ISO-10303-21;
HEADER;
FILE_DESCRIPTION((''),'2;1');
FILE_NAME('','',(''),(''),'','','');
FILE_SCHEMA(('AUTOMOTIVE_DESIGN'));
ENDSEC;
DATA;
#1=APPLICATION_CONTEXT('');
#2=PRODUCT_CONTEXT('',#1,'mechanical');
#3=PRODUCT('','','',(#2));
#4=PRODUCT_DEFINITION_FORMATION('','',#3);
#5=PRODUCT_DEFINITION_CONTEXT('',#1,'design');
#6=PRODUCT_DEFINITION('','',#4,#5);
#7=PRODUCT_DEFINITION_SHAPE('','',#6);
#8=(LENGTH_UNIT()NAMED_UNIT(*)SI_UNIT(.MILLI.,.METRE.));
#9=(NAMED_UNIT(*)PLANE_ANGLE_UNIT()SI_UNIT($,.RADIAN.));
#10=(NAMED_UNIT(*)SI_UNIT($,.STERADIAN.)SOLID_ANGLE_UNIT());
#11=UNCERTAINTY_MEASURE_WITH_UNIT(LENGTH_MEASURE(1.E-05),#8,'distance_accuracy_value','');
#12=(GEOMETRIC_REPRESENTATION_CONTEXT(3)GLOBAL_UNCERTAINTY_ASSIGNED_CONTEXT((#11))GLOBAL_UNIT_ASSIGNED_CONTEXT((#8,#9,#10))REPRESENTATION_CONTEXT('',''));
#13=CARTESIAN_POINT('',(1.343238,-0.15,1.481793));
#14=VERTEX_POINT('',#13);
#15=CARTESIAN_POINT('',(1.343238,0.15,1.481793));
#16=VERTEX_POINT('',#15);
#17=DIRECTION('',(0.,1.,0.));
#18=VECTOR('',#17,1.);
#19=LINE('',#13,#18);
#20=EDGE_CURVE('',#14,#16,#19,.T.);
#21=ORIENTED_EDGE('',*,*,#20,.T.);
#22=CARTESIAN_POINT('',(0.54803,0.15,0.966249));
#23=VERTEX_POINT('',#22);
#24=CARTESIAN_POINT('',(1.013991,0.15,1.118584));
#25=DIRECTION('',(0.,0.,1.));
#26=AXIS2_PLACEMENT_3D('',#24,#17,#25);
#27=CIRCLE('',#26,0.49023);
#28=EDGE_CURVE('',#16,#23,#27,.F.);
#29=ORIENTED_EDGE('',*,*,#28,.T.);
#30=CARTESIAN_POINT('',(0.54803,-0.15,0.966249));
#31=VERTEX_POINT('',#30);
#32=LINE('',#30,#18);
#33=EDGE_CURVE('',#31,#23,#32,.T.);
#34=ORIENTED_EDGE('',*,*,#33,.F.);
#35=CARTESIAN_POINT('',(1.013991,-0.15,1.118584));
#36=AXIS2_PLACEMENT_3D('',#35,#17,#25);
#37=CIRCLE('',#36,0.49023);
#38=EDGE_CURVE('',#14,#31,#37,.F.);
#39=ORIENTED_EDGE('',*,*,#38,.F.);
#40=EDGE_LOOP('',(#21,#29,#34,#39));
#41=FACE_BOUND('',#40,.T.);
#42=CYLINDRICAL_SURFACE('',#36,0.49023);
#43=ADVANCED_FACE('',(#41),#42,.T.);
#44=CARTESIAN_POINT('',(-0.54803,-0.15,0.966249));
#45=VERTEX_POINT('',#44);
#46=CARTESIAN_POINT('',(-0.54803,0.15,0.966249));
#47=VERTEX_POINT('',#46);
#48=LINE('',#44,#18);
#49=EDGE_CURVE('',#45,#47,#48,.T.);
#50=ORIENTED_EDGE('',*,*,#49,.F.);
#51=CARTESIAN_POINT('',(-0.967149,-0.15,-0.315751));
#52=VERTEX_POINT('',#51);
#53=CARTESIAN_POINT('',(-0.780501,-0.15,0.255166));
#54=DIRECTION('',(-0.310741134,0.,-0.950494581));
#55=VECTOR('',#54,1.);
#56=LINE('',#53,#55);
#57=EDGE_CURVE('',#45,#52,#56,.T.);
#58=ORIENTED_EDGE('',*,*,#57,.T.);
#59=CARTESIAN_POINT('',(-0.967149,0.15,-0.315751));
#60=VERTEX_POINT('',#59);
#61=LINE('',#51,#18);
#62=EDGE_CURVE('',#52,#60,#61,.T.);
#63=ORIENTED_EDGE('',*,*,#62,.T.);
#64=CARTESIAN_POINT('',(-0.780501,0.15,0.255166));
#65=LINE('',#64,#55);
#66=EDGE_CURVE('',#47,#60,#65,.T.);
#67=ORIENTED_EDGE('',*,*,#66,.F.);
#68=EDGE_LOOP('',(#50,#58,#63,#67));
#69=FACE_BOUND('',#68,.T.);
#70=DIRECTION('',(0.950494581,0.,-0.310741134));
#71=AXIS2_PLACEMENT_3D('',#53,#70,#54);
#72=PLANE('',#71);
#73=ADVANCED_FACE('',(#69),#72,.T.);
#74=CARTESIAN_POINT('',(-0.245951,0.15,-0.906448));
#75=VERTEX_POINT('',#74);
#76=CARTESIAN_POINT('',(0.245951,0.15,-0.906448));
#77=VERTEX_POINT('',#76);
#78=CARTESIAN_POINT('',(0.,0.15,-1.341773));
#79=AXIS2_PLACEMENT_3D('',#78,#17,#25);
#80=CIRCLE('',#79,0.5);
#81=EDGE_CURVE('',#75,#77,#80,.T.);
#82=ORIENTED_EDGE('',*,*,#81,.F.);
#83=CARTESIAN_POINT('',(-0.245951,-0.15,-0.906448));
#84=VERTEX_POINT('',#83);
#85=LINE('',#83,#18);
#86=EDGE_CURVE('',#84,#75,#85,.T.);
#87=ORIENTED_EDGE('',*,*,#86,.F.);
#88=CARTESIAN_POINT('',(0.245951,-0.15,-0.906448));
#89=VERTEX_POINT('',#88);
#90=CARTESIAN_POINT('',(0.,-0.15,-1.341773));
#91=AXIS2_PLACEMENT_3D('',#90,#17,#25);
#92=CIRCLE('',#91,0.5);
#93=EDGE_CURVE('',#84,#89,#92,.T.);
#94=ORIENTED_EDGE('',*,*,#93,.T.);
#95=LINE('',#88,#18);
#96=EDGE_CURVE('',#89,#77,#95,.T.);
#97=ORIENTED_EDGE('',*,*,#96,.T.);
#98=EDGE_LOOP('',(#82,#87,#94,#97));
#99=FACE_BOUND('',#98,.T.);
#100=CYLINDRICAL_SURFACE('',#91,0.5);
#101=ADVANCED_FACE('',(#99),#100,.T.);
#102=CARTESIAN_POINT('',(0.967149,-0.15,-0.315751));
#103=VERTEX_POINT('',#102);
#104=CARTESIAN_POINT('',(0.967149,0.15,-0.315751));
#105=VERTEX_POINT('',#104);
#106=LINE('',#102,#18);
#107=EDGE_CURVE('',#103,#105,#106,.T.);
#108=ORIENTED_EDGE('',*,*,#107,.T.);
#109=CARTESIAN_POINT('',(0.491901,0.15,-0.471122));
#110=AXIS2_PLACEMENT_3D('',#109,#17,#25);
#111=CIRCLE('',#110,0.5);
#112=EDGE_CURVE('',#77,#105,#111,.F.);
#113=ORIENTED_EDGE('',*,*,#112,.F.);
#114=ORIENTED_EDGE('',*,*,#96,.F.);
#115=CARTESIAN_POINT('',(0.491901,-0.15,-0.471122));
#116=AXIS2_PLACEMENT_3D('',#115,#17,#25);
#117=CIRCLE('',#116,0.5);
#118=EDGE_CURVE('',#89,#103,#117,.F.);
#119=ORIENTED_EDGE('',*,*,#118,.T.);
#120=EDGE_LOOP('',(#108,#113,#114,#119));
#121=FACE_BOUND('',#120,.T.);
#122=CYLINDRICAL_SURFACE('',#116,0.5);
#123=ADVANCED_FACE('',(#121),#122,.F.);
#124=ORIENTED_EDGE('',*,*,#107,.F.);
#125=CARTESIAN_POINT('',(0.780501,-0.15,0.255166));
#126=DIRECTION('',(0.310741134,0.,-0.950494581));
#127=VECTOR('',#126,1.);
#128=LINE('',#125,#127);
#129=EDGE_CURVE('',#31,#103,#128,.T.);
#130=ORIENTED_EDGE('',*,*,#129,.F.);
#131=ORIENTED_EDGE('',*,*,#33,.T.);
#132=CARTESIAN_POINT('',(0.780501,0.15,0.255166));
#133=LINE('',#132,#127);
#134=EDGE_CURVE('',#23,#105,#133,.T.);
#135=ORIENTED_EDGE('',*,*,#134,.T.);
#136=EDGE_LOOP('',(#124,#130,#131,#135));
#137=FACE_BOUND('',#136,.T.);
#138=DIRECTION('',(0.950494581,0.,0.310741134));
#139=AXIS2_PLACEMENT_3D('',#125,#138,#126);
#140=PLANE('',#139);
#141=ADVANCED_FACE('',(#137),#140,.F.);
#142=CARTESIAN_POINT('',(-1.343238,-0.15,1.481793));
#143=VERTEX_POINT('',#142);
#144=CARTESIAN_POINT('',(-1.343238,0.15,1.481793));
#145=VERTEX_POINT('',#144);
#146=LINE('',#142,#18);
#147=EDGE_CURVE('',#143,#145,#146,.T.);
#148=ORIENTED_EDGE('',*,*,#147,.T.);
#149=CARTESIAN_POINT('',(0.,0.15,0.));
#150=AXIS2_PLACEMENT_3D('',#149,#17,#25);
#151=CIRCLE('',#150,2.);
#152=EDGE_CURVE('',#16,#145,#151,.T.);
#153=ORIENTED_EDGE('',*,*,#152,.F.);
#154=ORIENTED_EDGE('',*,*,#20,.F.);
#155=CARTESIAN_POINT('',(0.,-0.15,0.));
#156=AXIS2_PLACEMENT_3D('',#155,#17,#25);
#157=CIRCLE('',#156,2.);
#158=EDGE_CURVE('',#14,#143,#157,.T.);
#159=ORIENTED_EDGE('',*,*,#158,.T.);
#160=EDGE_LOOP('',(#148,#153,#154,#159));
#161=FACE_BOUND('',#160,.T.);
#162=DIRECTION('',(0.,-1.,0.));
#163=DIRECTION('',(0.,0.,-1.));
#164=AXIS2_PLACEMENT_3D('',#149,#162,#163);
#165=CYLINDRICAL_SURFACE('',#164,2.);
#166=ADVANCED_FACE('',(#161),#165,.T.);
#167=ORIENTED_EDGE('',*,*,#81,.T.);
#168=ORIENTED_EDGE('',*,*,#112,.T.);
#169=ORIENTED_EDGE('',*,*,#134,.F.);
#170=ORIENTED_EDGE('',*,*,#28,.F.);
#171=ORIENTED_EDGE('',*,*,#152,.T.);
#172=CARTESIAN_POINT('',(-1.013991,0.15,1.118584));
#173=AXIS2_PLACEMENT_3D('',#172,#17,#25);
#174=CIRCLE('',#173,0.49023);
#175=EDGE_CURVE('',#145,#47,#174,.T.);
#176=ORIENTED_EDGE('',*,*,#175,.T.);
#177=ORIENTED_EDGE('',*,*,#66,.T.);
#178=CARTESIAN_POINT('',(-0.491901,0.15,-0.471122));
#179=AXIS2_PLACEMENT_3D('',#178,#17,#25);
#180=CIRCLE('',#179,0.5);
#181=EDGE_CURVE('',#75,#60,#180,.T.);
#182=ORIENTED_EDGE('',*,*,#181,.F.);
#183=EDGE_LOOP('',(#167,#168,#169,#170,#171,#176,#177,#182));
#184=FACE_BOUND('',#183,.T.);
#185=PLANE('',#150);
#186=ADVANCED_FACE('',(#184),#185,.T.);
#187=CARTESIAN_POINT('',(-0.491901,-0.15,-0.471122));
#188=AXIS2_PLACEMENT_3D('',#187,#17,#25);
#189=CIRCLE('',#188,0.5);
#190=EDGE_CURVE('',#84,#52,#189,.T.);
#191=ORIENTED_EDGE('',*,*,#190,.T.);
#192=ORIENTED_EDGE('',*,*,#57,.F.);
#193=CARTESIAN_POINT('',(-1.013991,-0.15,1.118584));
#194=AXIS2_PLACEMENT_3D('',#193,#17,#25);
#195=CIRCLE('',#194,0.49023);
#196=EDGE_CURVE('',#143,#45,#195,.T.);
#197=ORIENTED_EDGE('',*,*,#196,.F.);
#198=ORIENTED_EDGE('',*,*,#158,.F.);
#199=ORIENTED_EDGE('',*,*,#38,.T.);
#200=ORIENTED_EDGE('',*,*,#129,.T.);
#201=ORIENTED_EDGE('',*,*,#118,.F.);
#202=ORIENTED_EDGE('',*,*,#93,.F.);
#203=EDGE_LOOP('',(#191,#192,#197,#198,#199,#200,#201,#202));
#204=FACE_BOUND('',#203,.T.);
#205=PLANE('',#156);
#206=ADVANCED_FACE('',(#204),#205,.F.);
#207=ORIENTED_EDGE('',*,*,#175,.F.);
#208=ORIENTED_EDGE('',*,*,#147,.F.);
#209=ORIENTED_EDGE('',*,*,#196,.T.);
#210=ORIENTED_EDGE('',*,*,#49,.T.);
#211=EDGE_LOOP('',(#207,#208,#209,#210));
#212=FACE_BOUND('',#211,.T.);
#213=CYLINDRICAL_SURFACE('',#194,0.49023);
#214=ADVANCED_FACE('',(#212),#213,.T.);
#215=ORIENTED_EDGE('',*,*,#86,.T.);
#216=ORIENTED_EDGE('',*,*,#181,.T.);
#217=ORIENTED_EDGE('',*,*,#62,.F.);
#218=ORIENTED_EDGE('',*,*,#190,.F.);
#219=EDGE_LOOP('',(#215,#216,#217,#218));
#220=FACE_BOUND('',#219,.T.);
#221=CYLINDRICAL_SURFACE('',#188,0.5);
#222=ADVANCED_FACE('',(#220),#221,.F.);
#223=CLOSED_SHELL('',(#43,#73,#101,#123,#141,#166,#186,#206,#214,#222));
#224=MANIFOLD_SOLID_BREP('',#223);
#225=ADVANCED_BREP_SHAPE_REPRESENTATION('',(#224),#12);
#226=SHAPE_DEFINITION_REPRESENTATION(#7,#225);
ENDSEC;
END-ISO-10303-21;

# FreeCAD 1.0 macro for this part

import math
import FreeCAD as App
import Part
import Sketcher

doc = App.newDocument("Part")
params = doc.addObject("Spreadsheet::Sheet", "Params")
for row, (alias, value) in enumerate([
    ("sketch1_diameter", "4 mm"),
    ("pad1_length", "0.3 mm"),
    ("sketch2_radius", "2 mm"),
    ("sketch2_radius2", "0.5 mm"),
    ("pocket1_length", "0.3 mm"),
], start=1):
    params.set(f"A{row}", alias)
    params.set(f"B{row}", "=" + value)
    params.setAlias(f"B{row}", alias)

body = doc.addObject("PartDesign::Body", "Body")

sketch1 = body.newObject("Sketcher::SketchObject", "Sketch")
sketch1.AttachmentSupport = (doc.getObject("XZ_Plane"), [""])
sketch1.MapMode = "FlatFace"
sketch1.addGeometry(Part.Circle(App.Vector(0, 0, 0), App.Vector(0, 0, 1), 2), False)
sketch1.addConstraint(Sketcher.Constraint("Coincident", 0, 3, -1, 1))
sketch1.addConstraint(Sketcher.Constraint("Diameter", 0, 4.0))
sketch1.setExpression("Constraints[1]", "Params.sketch1_diameter")
pad1 = body.newObject("PartDesign::Pad", "Pad")
pad1.Profile = sketch1
pad1.setExpression("Length", "Params.pad1_length")
pad1.Midplane = True

sketch2 = body.newObject("Sketcher::SketchObject", "Sketch001")
sketch2.AttachmentSupport = (doc.getObject("XZ_Plane"), [""])
sketch2.MapMode = "FlatFace"
sketch2.AttachmentOffset = App.Placement(App.Vector(0, 0, -0.15), App.Rotation())
sketch2.addGeometry(Part.LineSegment(App.Vector(-0.967149, -0.315751, 0), App.Vector(-0.54803, 0.966249, 0)), False)
sketch2.addGeometry(Part.ArcOfCircle(Part.Circle(App.Vector(-1.013991, 1.118583, 0), App.Vector(0, 0, 1), 0.49023), math.radians(-18.1039), math.radians(132.192154)), False)
sketch2.addGeometry(Part.ArcOfCircle(Part.Circle(App.Vector(0, 0, 0), App.Vector(0, 0, 1), 2), math.radians(47.807846), math.radians(132.192154)), False)
sketch2.addGeometry(Part.ArcOfCircle(Part.Circle(App.Vector(1.013991, 1.118583, 0), App.Vector(0, 0, 1), 0.49023), math.radians(47.807846), math.radians(198.1039)), False)
sketch2.addGeometry(Part.LineSegment(App.Vector(0.54803, 0.966249, 0), App.Vector(0.967149, -0.315751, 0)), False)
sketch2.addGeometry(Part.ArcOfCircle(Part.Circle(App.Vector(0.491901, -0.471122, 0), App.Vector(0, 0, 1), 0.5), math.radians(-119.465623), math.radians(18.1039)), False)
sketch2.addGeometry(Part.ArcOfCircle(Part.Circle(App.Vector(0, -1.341773, 0), App.Vector(0, 0, 1), 0.5), math.radians(60.534378), math.radians(119.465622)), False)
sketch2.addGeometry(Part.ArcOfCircle(Part.Circle(App.Vector(-0.491901, -0.471122, 0), App.Vector(0, 0, 1), 0.5), math.radians(161.8961), math.radians(299.465623)), False)
sketch2.addConstraint(Sketcher.Constraint("Tangent", 0, 2, 1, 1))
sketch2.addConstraint(Sketcher.Constraint("Tangent", 1, 2, 2, 2))
sketch2.addConstraint(Sketcher.Constraint("Tangent", 2, 1, 3, 1))
sketch2.addConstraint(Sketcher.Constraint("Tangent", 3, 2, 4, 1))
sketch2.addConstraint(Sketcher.Constraint("Tangent", 4, 2, 5, 2))
sketch2.addConstraint(Sketcher.Constraint("Tangent", 5, 1, 6, 1))
sketch2.addConstraint(Sketcher.Constraint("Tangent", 6, 2, 7, 2))
sketch2.addConstraint(Sketcher.Constraint("Tangent", 7, 1, 0, 1))
sketch2.addConstraint(Sketcher.Constraint("Coincident", 2, 3, -1, 1))
sketch2.addConstraint(Sketcher.Constraint("Equal", 1, 3))
sketch2.addConstraint(Sketcher.Constraint("Equal", 5, 6))
sketch2.addConstraint(Sketcher.Constraint("Equal", 6, 7))
sketch2.addConstraint(Sketcher.Constraint("Symmetric", 5, 3, 7, 3, -2))
sketch2.addConstraint(Sketcher.Constraint("Horizontal", 1, 3, 3, 3))
sketch2.addConstraint(Sketcher.Constraint("Radius", 2, 2.0))
sketch2.addConstraint(Sketcher.Constraint("Radius", 5, 0.5))
sketch2.addConstraint(Sketcher.Constraint("Radius", 1, 0.49023))
sketch2.addConstraint(Sketcher.Constraint("DistanceY", 4, 2, 3, 2, 1.282))
sketch2.addConstraint(Sketcher.Constraint("DistanceX", -1, 1, 5, 3, 0.491901))
sketch2.addConstraint(Sketcher.Constraint("DistanceX", 7, 1, 5, 1, 1.213099))
sketch2.setExpression("Constraints[14]", "Params.sketch2_radius")
sketch2.setExpression("Constraints[15]", "Params.sketch2_radius2")
pocket1 = body.newObject("PartDesign::Pocket", "Pocket")
pocket1.Profile = sketch2
pocket1.setExpression("Length", "Params.pocket1_length")
pocket1.Reversed = True

doc.recompute()
